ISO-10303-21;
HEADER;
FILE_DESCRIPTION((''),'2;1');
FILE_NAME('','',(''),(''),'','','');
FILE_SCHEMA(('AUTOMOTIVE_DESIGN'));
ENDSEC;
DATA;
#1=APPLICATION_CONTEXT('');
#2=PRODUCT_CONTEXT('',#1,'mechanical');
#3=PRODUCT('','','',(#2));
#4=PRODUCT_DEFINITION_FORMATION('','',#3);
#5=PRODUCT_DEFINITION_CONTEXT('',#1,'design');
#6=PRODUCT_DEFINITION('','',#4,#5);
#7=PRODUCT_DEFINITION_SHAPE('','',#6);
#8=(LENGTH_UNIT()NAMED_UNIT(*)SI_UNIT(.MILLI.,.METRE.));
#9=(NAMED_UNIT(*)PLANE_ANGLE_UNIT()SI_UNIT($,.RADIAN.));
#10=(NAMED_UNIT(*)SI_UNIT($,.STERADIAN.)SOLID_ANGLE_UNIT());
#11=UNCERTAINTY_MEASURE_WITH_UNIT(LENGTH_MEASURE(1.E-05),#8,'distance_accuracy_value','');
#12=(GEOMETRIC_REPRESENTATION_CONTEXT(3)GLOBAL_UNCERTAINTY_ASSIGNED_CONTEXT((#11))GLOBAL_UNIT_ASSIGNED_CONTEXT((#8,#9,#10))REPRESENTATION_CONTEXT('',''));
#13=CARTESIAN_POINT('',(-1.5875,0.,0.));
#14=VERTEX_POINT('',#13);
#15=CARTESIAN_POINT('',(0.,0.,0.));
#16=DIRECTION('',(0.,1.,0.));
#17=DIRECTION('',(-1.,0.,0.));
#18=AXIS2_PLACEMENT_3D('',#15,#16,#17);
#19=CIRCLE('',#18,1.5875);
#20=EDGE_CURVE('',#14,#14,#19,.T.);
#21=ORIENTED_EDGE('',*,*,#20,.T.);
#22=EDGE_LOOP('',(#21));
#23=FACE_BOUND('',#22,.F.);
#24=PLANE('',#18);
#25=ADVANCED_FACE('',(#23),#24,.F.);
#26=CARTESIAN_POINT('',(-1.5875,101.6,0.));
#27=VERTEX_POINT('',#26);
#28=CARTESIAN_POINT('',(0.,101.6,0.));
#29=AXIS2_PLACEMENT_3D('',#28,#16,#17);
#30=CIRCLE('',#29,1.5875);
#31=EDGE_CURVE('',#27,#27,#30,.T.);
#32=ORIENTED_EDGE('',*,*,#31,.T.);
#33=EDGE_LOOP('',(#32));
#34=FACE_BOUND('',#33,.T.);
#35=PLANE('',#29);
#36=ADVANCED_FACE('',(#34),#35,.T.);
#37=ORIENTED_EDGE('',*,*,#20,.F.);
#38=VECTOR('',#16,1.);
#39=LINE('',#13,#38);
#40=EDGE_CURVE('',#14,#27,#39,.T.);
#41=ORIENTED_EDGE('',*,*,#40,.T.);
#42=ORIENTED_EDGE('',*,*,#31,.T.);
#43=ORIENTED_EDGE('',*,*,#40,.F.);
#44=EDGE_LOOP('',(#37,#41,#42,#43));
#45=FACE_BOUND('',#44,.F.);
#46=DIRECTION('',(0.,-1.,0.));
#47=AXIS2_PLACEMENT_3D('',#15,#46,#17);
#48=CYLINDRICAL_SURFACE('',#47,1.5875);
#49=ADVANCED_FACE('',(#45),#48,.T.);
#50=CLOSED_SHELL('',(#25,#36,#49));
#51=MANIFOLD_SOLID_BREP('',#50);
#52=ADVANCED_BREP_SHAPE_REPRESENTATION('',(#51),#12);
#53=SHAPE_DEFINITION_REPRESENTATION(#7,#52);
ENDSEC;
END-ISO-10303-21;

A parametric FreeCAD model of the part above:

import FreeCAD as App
import Part
import Sketcher
from FreeCAD import Vector
Q = App.Units.Quantity

doc = App.newDocument("Part")
body = doc.addObject("PartDesign::Body", "Body")

sketch1 = body.newObject("Sketcher::SketchObject", "Sketch")
sketch1.AttachmentSupport = (doc.getObject("XZ_Plane"), [""])
sketch1.MapMode = "FlatFace"
sketch1.addGeometry(Part.Circle(Vector(0, 0, 0), Vector(0, 0, 1), 1.6), False)
sketch1.addConstraint([
    Sketcher.Constraint("Coincident", 0, 3, -1, 1),
    Sketcher.Constraint("Diameter", 0, Q("0.125 in")),
])
pad1 = body.newObject("PartDesign::Pad", "Pad")
pad1.Profile = sketch1
pad1.Length = Q("4 in")
pad1.Reversed = True

doc.recompute()
